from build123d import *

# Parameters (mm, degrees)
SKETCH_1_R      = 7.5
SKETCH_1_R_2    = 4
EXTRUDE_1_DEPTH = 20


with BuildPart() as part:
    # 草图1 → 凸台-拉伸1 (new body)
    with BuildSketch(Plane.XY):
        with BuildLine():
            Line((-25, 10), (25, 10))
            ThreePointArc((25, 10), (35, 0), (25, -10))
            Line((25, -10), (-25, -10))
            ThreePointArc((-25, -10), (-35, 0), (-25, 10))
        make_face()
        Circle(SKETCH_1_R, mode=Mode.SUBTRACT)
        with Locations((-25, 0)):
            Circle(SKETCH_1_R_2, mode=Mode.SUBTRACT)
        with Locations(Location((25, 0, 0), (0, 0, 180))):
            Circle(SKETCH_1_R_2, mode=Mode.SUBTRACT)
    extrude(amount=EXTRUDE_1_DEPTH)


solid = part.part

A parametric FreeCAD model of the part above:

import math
import FreeCAD as App
import Part
import Sketcher
from FreeCAD import Vector

doc = App.newDocument("Part")
body = doc.addObject("PartDesign::Body", "Body")

# Sketch on XY plane
sketch1 = body.newObject("Sketcher::SketchObject", "Sketch")
sketch1.AttachmentSupport = (doc.getObject("XY_Plane"), [""])
sketch1.MapMode = "FlatFace"
sketch1.addGeometry([
    Part.LineSegment(Vector(25, 10, 0), Vector(-25, 10, 0)),  # 0
    Part.ArcOfCircle(Part.Circle(Vector(-25, 0, 0), Vector(0, 0, 1), 10), math.radians(90), math.radians(270)),  # 1
    Part.LineSegment(Vector(-25, -10, 0), Vector(25, -10, 0)),  # 2
    Part.ArcOfCircle(Part.Circle(Vector(25, 0, 0), Vector(0, 0, 1), 10), math.radians(-90), math.radians(90)),  # 3
    Part.Circle(Vector(25, 0, 0), Vector(0, 0, 1), 4),  # 4
    Part.Circle(Vector(0, 0, 0), Vector(0, 0, 1), 7.5),  # 5
    Part.Circle(Vector(-25, 0, 0), Vector(0, 0, 1), 4),  # 6
], False)
sketch1.addConstraint([
    Sketcher.Constraint("Tangent", 0, 2, 1, 1),
    Sketcher.Constraint("Tangent", 1, 2, 2, 1),
    Sketcher.Constraint("Tangent", 2, 2, 3, 1),
    Sketcher.Constraint("Tangent", 3, 2, 0, 1),
    Sketcher.Constraint("Horizontal", 0),
    Sketcher.Constraint("Horizontal", 2),
    Sketcher.Constraint("Coincident", 5, 3, -1, 1),
    Sketcher.Constraint("Coincident", 4, 3, 3, 3),
    Sketcher.Constraint("Coincident", 6, 3, 1, 3),
    Sketcher.Constraint("Equal", 4, 6),
    Sketcher.Constraint("Symmetric", 1, 3, 3, 3, -1, 1),
    Sketcher.Constraint("Diameter", 4, 8.0),
    Sketcher.Constraint("Diameter", 5, 15.0),
    Sketcher.Constraint("Radius", 1, 10.0),
    Sketcher.Constraint("DistanceX", 0, 2, 0, 1, 50.0),
])
pad1 = body.newObject("PartDesign::Pad", "Pad")
pad1.Profile = sketch1
pad1.Length = 20

doc.recompute()
